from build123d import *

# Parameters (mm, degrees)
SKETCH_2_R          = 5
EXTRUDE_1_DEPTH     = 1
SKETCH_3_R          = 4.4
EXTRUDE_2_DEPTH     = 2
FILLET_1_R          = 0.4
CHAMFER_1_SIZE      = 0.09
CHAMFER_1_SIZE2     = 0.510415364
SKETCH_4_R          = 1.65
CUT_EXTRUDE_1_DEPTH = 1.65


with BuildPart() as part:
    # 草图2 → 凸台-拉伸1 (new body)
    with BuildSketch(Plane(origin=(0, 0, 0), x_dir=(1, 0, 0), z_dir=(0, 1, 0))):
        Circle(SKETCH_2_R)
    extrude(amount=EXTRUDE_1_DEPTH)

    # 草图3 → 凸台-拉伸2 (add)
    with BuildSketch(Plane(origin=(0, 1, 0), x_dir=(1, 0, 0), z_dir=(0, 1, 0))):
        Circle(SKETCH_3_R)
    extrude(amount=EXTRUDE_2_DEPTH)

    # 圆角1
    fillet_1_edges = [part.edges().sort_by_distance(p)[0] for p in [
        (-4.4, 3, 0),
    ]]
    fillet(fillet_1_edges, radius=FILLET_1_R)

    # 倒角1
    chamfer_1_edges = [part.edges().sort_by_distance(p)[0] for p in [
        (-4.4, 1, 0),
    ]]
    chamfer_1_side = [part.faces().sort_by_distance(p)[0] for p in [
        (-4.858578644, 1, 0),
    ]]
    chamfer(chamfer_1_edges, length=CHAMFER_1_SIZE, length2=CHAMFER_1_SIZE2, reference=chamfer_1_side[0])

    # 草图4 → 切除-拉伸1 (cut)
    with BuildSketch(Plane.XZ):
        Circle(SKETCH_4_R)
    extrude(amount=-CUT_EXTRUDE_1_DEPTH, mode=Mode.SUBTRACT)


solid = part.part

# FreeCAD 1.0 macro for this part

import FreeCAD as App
import Part
import Sketcher
from FreeCAD import Vector


def edges_at(feature, points):
    """Names of the edges that pass closest to the given points."""
    edges = feature.Shape.Edges
    near = lambda p: min(range(len(edges)), key=lambda i: edges[i].distToShape(Part.Vertex(*p))[0])
    return sorted({f"Edge{near(p) + 1}" for p in points})

doc = App.newDocument("Part")
body = doc.addObject("PartDesign::Body", "Body")

sketch1 = body.newObject("Sketcher::SketchObject", "Sketch")
sketch1.AttachmentSupport = (doc.getObject("XZ_Plane"), [""])
sketch1.MapMode = "FlatFace"
sketch1.addGeometry(Part.Circle(Vector(0, 0, 0), Vector(0, 0, 1), 5), False)
sketch1.addConstraint([
    Sketcher.Constraint("Coincident", 0, 3, -1, 1),
    Sketcher.Constraint("Diameter", 0, 10.0),
])
pad1 = body.newObject("PartDesign::Pad", "Pad")
pad1.Profile = sketch1
pad1.Length = 1
pad1.Reversed = True

sketch2 = body.newObject("Sketcher::SketchObject", "Sketch001")
sketch2.AttachmentSupport = (doc.getObject("XZ_Plane"), [""])
sketch2.MapMode = "FlatFace"
sketch2.AttachmentOffset = App.Placement(Vector(0, 0, -1), App.Rotation())
sketch2.addGeometry(Part.Circle(Vector(0, 0, 0), Vector(0, 0, 1), 4.4), False)
sketch2.addConstraint([
    Sketcher.Constraint("Coincident", 0, 3, -1, 1),
    Sketcher.Constraint("Diameter", 0, 8.8),
])
pad2 = body.newObject("PartDesign::Pad", "Pad001")
pad2.Profile = sketch2
pad2.Length = 2
pad2.Reversed = True
doc.recompute()

fillet = body.newObject("PartDesign::Fillet", "Fillet")
fillet.Base = (pad2, edges_at(pad2, [(-4.4, 3, 0)]))
fillet.Radius = 0.4
doc.recompute()

chamfer = body.newObject("PartDesign::Chamfer", "Chamfer")
chamfer.Base = (fillet, edges_at(fillet, [(-4.4, 1, 0)]))
chamfer.ChamferType = "Two distances"
chamfer.Size = 0.09
chamfer.Size2 = 0.510415
chamfer.FlipDirection = True

sketch3 = body.newObject("Sketcher::SketchObject", "Sketch002")
sketch3.AttachmentSupport = (doc.getObject("XZ_Plane"), [""])
sketch3.MapMode = "FlatFace"
sketch3.addGeometry(Part.Circle(Vector(0, 0, 0), Vector(0, 0, 1), 1.6), False)
sketch3.addConstraint([
    Sketcher.Constraint("Coincident", 0, 3, -1, 1),
    Sketcher.Constraint("Diameter", 0, 3.3),
])
pocket1 = body.newObject("PartDesign::Pocket", "Pocket")
pocket1.Profile = sketch3
pocket1.Length = 1.65

doc.recompute()
